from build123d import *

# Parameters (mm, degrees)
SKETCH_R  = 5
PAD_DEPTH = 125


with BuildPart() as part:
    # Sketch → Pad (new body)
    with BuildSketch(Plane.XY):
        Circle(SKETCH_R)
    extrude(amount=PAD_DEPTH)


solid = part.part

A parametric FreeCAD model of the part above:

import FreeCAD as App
import Part
import Sketcher
Q = App.Units.Quantity

doc = App.newDocument("Part")
body = doc.addObject("PartDesign::Body", "Body")

# Sketch on XY plane
sketch1 = body.newObject("Sketcher::SketchObject", "Sketch")
sketch1.AttachmentSupport = (doc.getObject("XY_Plane"), [""])
sketch1.MapMode = "FlatFace"
sketch1.addGeometry(Part.Circle(App.Vector(0, 0, 0), App.Vector(0, 0, 1), 5), False)
sketch1.addConstraint([
    Sketcher.Constraint("Coincident", 0, 3, -1, 1),
    Sketcher.Constraint("Diameter", 0, Q("10 mm")),
])
pad1 = body.newObject("PartDesign::Pad", "Pad")
pad1.Profile = sketch1
pad1.Length = 125

doc.recompute()
